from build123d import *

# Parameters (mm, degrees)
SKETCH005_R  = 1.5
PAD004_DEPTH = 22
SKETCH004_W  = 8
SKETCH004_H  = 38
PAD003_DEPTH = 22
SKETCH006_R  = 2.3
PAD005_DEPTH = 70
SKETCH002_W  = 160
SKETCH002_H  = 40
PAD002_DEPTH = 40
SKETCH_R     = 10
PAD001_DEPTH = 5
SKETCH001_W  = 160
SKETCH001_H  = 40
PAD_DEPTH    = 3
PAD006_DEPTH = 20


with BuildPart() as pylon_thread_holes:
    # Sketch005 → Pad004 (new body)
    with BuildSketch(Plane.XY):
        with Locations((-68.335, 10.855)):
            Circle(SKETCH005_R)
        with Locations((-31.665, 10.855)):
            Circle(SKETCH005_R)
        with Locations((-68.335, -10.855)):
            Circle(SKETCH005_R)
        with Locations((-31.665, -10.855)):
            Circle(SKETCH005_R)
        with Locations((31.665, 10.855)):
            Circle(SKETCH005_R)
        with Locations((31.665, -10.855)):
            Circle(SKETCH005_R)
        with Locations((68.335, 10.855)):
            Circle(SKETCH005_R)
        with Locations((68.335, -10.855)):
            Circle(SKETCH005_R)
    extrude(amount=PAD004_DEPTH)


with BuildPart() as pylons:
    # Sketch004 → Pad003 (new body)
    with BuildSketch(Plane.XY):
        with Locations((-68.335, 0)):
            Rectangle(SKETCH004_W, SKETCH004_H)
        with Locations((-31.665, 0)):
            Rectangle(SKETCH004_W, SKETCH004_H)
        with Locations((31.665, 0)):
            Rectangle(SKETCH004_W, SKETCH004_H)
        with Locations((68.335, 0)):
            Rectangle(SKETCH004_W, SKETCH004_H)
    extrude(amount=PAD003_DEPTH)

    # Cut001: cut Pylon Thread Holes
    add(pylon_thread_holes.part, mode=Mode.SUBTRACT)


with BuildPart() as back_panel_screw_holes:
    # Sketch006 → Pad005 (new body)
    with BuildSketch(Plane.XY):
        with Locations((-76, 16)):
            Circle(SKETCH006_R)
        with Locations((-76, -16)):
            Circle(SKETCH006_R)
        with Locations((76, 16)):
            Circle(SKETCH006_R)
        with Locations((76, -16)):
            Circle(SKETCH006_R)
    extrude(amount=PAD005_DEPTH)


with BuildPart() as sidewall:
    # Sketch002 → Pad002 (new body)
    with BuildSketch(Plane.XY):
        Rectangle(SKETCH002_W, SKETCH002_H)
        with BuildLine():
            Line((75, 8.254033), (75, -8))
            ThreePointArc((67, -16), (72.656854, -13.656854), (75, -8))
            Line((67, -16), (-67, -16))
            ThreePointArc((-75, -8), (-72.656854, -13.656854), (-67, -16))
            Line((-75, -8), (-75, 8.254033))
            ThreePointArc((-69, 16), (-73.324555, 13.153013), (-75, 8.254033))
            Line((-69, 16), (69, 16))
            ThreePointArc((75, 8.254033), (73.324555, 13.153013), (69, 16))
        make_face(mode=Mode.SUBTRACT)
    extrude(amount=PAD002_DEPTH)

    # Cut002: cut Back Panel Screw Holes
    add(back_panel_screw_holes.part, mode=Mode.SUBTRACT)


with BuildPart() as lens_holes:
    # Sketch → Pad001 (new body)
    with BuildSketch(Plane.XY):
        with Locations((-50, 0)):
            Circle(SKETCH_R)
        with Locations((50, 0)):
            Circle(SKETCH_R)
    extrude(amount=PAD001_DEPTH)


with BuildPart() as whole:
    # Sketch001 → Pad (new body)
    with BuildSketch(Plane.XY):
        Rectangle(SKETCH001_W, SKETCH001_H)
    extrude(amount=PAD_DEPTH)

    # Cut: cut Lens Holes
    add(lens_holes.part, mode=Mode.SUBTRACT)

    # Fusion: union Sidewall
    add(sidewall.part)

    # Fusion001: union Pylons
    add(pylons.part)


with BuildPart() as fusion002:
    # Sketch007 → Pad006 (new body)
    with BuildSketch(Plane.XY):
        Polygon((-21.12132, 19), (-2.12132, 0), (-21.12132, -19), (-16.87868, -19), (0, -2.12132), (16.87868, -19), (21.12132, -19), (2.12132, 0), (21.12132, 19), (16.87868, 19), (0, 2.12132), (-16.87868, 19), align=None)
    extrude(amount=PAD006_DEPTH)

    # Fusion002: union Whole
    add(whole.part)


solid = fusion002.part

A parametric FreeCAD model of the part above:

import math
import FreeCAD as App
import Part
import Sketcher

V = App.Vector

doc = App.newDocument("Part")
body = doc.addObject("PartDesign::Body", "Body")
body.AllowCompound = True

# Sketch on XY plane
sketch1 = body.newObject("Sketcher::SketchObject", "Sketch")
sketch1.AttachmentSupport = (doc.getObject("XY_Plane"), [""])
sketch1.MapMode = "FlatFace"
sketch1.addGeometry(Part.Circle(V(-68.335, 10.855, 0), V(0, 0, 1), 1.5), False)
sketch1.addGeometry(Part.Circle(V(-31.665, 10.855, 0), V(0, 0, 1), 1.5), False)
sketch1.addGeometry(Part.Circle(V(-68.335, -10.855, 0), V(0, 0, 1), 1.5), False)
sketch1.addGeometry(Part.Circle(V(-31.665, -10.855, 0), V(0, 0, 1), 1.5), False)
sketch1.addGeometry(Part.Circle(V(31.665, 10.855, 0), V(0, 0, 1), 1.5), False)
sketch1.addGeometry(Part.Circle(V(31.665, -10.855, 0), V(0, 0, 1), 1.5), False)
sketch1.addGeometry(Part.Circle(V(68.335, 10.855, 0), V(0, 0, 1), 1.5), False)
sketch1.addGeometry(Part.Circle(V(68.335, -10.855, 0), V(0, 0, 1), 1.5), False)
sketch1.addConstraint(Sketcher.Constraint("Equal", 0, 1))
sketch1.addConstraint(Sketcher.Constraint("Equal", 1, 2))
sketch1.addConstraint(Sketcher.Constraint("Equal", 2, 3))
sketch1.addConstraint(Sketcher.Constraint("Equal", 3, 4))
sketch1.addConstraint(Sketcher.Constraint("Equal", 4, 5))
sketch1.addConstraint(Sketcher.Constraint("Equal", 5, 6))
sketch1.addConstraint(Sketcher.Constraint("Equal", 6, 7))
sketch1.addConstraint(Sketcher.Constraint("Symmetric", 3, 3, 4, 3, -1, 1))
sketch1.addConstraint(Sketcher.Constraint("Symmetric", 1, 3, 5, 3, -1, 1))
sketch1.addConstraint(Sketcher.Constraint("Symmetric", 2, 3, 6, 3, -1, 1))
sketch1.addConstraint(Sketcher.Constraint("Symmetric", 0, 3, 7, 3, -1, 1))
sketch1.addConstraint(Sketcher.Constraint("Symmetric", 1, 3, 4, 3, -2))
sketch1.addConstraint(Sketcher.Constraint("Symmetric", 0, 3, 6, 3, -2))
sketch1.addConstraint(Sketcher.Constraint("Horizontal", 0, 3, 1, 3))
sketch1.addConstraint(Sketcher.Constraint("Diameter", 0, 3.0))
sketch1.addConstraint(Sketcher.Constraint("DistanceX", 0, 3, 4, 3, 100.0))
sketch1.addConstraint(Sketcher.Constraint("DistanceX", 0, 3, 1, 3, 36.67))
sketch1.addConstraint(Sketcher.Constraint("DistanceY", 2, 3, 0, 3, 21.71))
pad1 = body.newObject("PartDesign::Pad", "Pad")
pad1.Profile = sketch1
pad1.Length = 22
body2 = doc.addObject("PartDesign::Body", "Body001")
body2.AllowCompound = True

# Sketch on XY plane
sketch2 = body2.newObject("Sketcher::SketchObject", "Sketch001")
sketch2.AttachmentSupport = (doc.getObject("XY_Plane001"), [""])
sketch2.MapMode = "FlatFace"
sketch2.addGeometry(Part.LineSegment(V(-72.335, 19, 0), V(-72.335, -19, 0)), False)
sketch2.addGeometry(Part.LineSegment(V(-72.335, -19, 0), V(-64.335, -19, 0)), False)
sketch2.addGeometry(Part.LineSegment(V(-64.335, -19, 0), V(-64.335, 19, 0)), False)
sketch2.addGeometry(Part.LineSegment(V(-64.335, 19, 0), V(-72.335, 19, 0)), False)
sketch2.addGeometry(Part.LineSegment(V(-35.665, 19, 0), V(-35.665, -19, 0)), False)
sketch2.addGeometry(Part.LineSegment(V(-35.665, -19, 0), V(-27.665, -19, 0)), False)
sketch2.addGeometry(Part.LineSegment(V(-27.665, -19, 0), V(-27.665, 19, 0)), False)
sketch2.addGeometry(Part.LineSegment(V(-27.665, 19, 0), V(-35.665, 19, 0)), False)
sketch2.addGeometry(Part.LineSegment(V(27.665, 19, 0), V(27.665, -19, 0)), False)
sketch2.addGeometry(Part.LineSegment(V(27.665, -19, 0), V(35.665, -19, 0)), False)
sketch2.addGeometry(Part.LineSegment(V(35.665, -19, 0), V(35.665, 19, 0)), False)
sketch2.addGeometry(Part.LineSegment(V(35.665, 19, 0), V(27.665, 19, 0)), False)
sketch2.addGeometry(Part.LineSegment(V(64.335, 19, 0), V(64.335, -19, 0)), False)
sketch2.addGeometry(Part.LineSegment(V(64.335, -19, 0), V(72.335, -19, 0)), False)
sketch2.addGeometry(Part.LineSegment(V(72.335, -19, 0), V(72.335, 19, 0)), False)
sketch2.addGeometry(Part.LineSegment(V(72.335, 19, 0), V(64.335, 19, 0)), False)
sketch2.addConstraint(Sketcher.Constraint("Coincident", 0, 2, 1, 1))
sketch2.addConstraint(Sketcher.Constraint("Coincident", 1, 2, 2, 1))
sketch2.addConstraint(Sketcher.Constraint("Coincident", 2, 2, 3, 1))
sketch2.addConstraint(Sketcher.Constraint("Coincident", 3, 2, 0, 1))
sketch2.addConstraint(Sketcher.Constraint("Coincident", 4, 2, 5, 1))
sketch2.addConstraint(Sketcher.Constraint("Coincident", 5, 2, 6, 1))
sketch2.addConstraint(Sketcher.Constraint("Coincident", 6, 2, 7, 1))
sketch2.addConstraint(Sketcher.Constraint("Coincident", 7, 2, 4, 1))
sketch2.addConstraint(Sketcher.Constraint("Coincident", 8, 2, 9, 1))
sketch2.addConstraint(Sketcher.Constraint("Coincident", 9, 2, 10, 1))
sketch2.addConstraint(Sketcher.Constraint("Coincident", 10, 2, 11, 1))
sketch2.addConstraint(Sketcher.Constraint("Coincident", 11, 2, 8, 1))
sketch2.addConstraint(Sketcher.Constraint("Coincident", 12, 2, 13, 1))
sketch2.addConstraint(Sketcher.Constraint("Coincident", 13, 2, 14, 1))
sketch2.addConstraint(Sketcher.Constraint("Coincident", 14, 2, 15, 1))
sketch2.addConstraint(Sketcher.Constraint("Coincident", 15, 2, 12, 1))
sketch2.addConstraint(Sketcher.Constraint("Vertical", 0))
sketch2.addConstraint(Sketcher.Constraint("Horizontal", 1))
sketch2.addConstraint(Sketcher.Constraint("Vertical", 2))
sketch2.addConstraint(Sketcher.Constraint("Horizontal", 3))
sketch2.addConstraint(Sketcher.Constraint("Vertical", 4))
sketch2.addConstraint(Sketcher.Constraint("Horizontal", 5))
sketch2.addConstraint(Sketcher.Constraint("Vertical", 6))
sketch2.addConstraint(Sketcher.Constraint("Horizontal", 7))
sketch2.addConstraint(Sketcher.Constraint("Vertical", 8))
sketch2.addConstraint(Sketcher.Constraint("Horizontal", 9))
sketch2.addConstraint(Sketcher.Constraint("Vertical", 10))
sketch2.addConstraint(Sketcher.Constraint("Horizontal", 11))
sketch2.addConstraint(Sketcher.Constraint("Vertical", 12))
sketch2.addConstraint(Sketcher.Constraint("Horizontal", 13))
sketch2.addConstraint(Sketcher.Constraint("Vertical", 14))
sketch2.addConstraint(Sketcher.Constraint("Horizontal", 15))
sketch2.addConstraint(Sketcher.Constraint("Symmetric", 6, 2, 8, 2, -1, 1))
sketch2.addConstraint(Sketcher.Constraint("Symmetric", 4, 2, 10, 2, -1, 1))
sketch2.addConstraint(Sketcher.Constraint("Symmetric", 2, 2, 12, 2, -1, 1))
sketch2.addConstraint(Sketcher.Constraint("Symmetric", 0, 2, 14, 2, -1, 1))
sketch2.addConstraint(Sketcher.Constraint("Horizontal", 1, 2, 4, 2))
sketch2.addConstraint(Sketcher.Constraint("Horizontal", 3, 2, 6, 2))
sketch2.addConstraint(Sketcher.Constraint("Horizontal", 5, 2, 8, 2))
sketch2.addConstraint(Sketcher.Constraint("Equal", 3, 5))
sketch2.addConstraint(Sketcher.Constraint("DistanceX", 1, 1, 1, 2, 8.0))
sketch2.addConstraint(Sketcher.Constraint("DistanceY", 0, 2, 0, 1, 38.0))
sketch2.addConstraint(Sketcher.Constraint("DistanceX", 1, 2, 8, 2, 92.0))
sketch2.addConstraint(Sketcher.Constraint("DistanceX", 1, 2, 4, 2, 28.67))
pad2 = body2.newObject("PartDesign::Pad", "Pad001")
pad2.Profile = sketch2
pad2.Length = 22
doc.recompute()

boolean = body2.newObject("PartDesign::Boolean", "Boolean")
boolean.Type = "Cut"
boolean.addObjects([body])
body3 = doc.addObject("PartDesign::Body", "Body002")
body3.AllowCompound = True

# Sketch on XY plane
sketch3 = body3.newObject("Sketcher::SketchObject", "Sketch002")
sketch3.AttachmentSupport = (doc.getObject("XY_Plane002"), [""])
sketch3.MapMode = "FlatFace"
sketch3.addGeometry(Part.Circle(V(-76, 16, 0), V(0, 0, 1), 2.3), False)
sketch3.addGeometry(Part.Circle(V(-76, -16, 0), V(0, 0, 1), 2.3), False)
sketch3.addGeometry(Part.Circle(V(76, 16, 0), V(0, 0, 1), 2.3), False)
sketch3.addGeometry(Part.Circle(V(76, -16, 0), V(0, 0, 1), 2.3), False)
sketch3.addConstraint(Sketcher.Constraint("Equal", 0, 1))
sketch3.addConstraint(Sketcher.Constraint("Equal", 1, 2))
sketch3.addConstraint(Sketcher.Constraint("Equal", 2, 3))
sketch3.addConstraint(Sketcher.Constraint("Symmetric", 1, 3, 2, 3, -1, 1))
sketch3.addConstraint(Sketcher.Constraint("Symmetric", 0, 3, 3, 3, -1, 1))
sketch3.addConstraint(Sketcher.Constraint("Symmetric", 0, 3, 2, 3, -2))
sketch3.addConstraint(Sketcher.Constraint("Diameter", 0, 4.6))
sketch3.addConstraint(Sketcher.Constraint("DistanceX", 0, 3, -1, 1, 76.0))
sketch3.addConstraint(Sketcher.Constraint("DistanceY", -1, 1, 0, 3, 16.0))
pad3 = body3.newObject("PartDesign::Pad", "Pad002")
pad3.Profile = sketch3
pad3.Length = 70
body4 = doc.addObject("PartDesign::Body", "Body003")

# Sketch on XY plane
sketch4 = body4.newObject("Sketcher::SketchObject", "Sketch003")
sketch4.AttachmentSupport = (doc.getObject("XY_Plane003"), [""])
sketch4.MapMode = "FlatFace"
sketch4.addGeometry(Part.LineSegment(V(-80, 20, 0), V(-80, -20, 0)), False)
sketch4.addGeometry(Part.LineSegment(V(-80, -20, 0), V(80, -20, 0)), False)
sketch4.addGeometry(Part.LineSegment(V(80, -20, 0), V(80, 20, 0)), False)
sketch4.addGeometry(Part.LineSegment(V(80, 20, 0), V(-80, 20, 0)), False)
sketch4.addGeometry(Part.ArcOfCircle(Part.Circle(V(67, 8.254033, 0), V(0, 0, 1), 8), math.radians(0), math.radians(75.522485)), False)
sketch4.addGeometry(Part.LineSegment(V(75, 8.254033, 0), V(75, -8, 0)), False)
sketch4.addGeometry(Part.ArcOfCircle(Part.Circle(V(66.999999, -7.999999, 0), V(0, 0, 1), 8.000001), math.radians(-89.999994), math.radians(-0.000006)), False)
sketch4.addGeometry(Part.LineSegment(V(67, -16, 0), V(-67, -16, 0)), False)
sketch4.addGeometry(Part.ArcOfCircle(Part.Circle(V(-66.999999, -7.999999, 0), V(0, 0, 1), 8.000001), math.radians(-179.999994), math.radians(-90.000006)), False)
sketch4.addGeometry(Part.LineSegment(V(-75, -8, 0), V(-75, 8.254033, 0)), False)
sketch4.addGeometry(Part.ArcOfCircle(Part.Circle(V(-67, 8.254033, 0), V(0, 0, 1), 8), math.radians(104.477515), math.radians(180)), False)
sketch4.addGeometry(Part.LineSegment(V(-69, 16, 0), V(69, 16, 0)), False)
sketch4.addConstraint(Sketcher.Constraint("Coincident", 0, 2, 1, 1))
sketch4.addConstraint(Sketcher.Constraint("Coincident", 1, 2, 2, 1))
sketch4.addConstraint(Sketcher.Constraint("Coincident", 2, 2, 3, 1))
sketch4.addConstraint(Sketcher.Constraint("Coincident", 3, 2, 0, 1))
sketch4.addConstraint(Sketcher.Constraint("Tangent", 4, 1, 5, 1))
sketch4.addConstraint(Sketcher.Constraint("Tangent", 5, 2, 6, 2))
sketch4.addConstraint(Sketcher.Constraint("Tangent", 6, 1, 7, 1))
sketch4.addConstraint(Sketcher.Constraint("Tangent", 7, 2, 8, 2))
sketch4.addConstraint(Sketcher.Constraint("Tangent", 8, 1, 9, 1))
sketch4.addConstraint(Sketcher.Constraint("Tangent", 9, 2, 10, 2))
sketch4.addConstraint(Sketcher.Constraint("Coincident", 10, 1, 11, 1))
sketch4.addConstraint(Sketcher.Constraint("Coincident", 11, 2, 4, 2))
sketch4.addConstraint(Sketcher.Constraint("Vertical", 0))
sketch4.addConstraint(Sketcher.Constraint("Horizontal", 1))
sketch4.addConstraint(Sketcher.Constraint("Vertical", 2))
sketch4.addConstraint(Sketcher.Constraint("Horizontal", 3))
sketch4.addConstraint(Sketcher.Constraint("Vertical", 5))
sketch4.addConstraint(Sketcher.Constraint("Horizontal", 7))
sketch4.addConstraint(Sketcher.Constraint("Vertical", 9))
sketch4.addConstraint(Sketcher.Constraint("Horizontal", 11))
sketch4.addConstraint(Sketcher.Constraint("Equal", 4, 6))
sketch4.addConstraint(Sketcher.Constraint("Equal", 6, 8))
sketch4.addConstraint(Sketcher.Constraint("Equal", 8, 10))
sketch4.addConstraint(Sketcher.Constraint("Symmetric", 0, 2, 2, 2, -1, 1))
sketch4.addConstraint(Sketcher.Constraint("Symmetric", 4, 3, 10, 3, -2))
sketch4.addConstraint(Sketcher.Constraint("Radius", 4, 8.0))
sketch4.addConstraint(Sketcher.Constraint("DistanceX", 1, 1, 1, 2, 160.0))
sketch4.addConstraint(Sketcher.Constraint("DistanceX", 7, 2, 7, 1, 134.0))
sketch4.addConstraint(Sketcher.Constraint("DistanceX", 11, 1, 11, 2, 138.0))
sketch4.addConstraint(Sketcher.Constraint("DistanceY", 0, 2, 0, 1, 40.0))
sketch4.addConstraint(Sketcher.Constraint("DistanceY", 6, 3, -1, 1, 7.999999))
sketch4.addConstraint(Sketcher.Constraint("DistanceY", -1, 1, 10, 1, 16.0))
pad4 = body4.newObject("PartDesign::Pad", "Pad003")
pad4.Profile = sketch4
pad4.Length = 40
doc.recompute()

boolean2 = body4.newObject("PartDesign::Boolean", "Boolean001")
boolean2.Type = "Cut"
boolean2.addObjects([body3])
body5 = doc.addObject("PartDesign::Body", "Body004")
body5.AllowCompound = True

# Sketch on XY plane
sketch5 = body5.newObject("Sketcher::SketchObject", "Sketch004")
sketch5.AttachmentSupport = (doc.getObject("XY_Plane004"), [""])
sketch5.MapMode = "FlatFace"
sketch5.addGeometry(Part.Circle(V(-50, 0, 0), V(0, 0, 1), 10), False)
sketch5.addGeometry(Part.Circle(V(50, 0, 0), V(0, 0, 1), 10), False)
sketch5.addConstraint(Sketcher.Constraint("Equal", 0, 1))
sketch5.addConstraint(Sketcher.Constraint("Symmetric", 0, 3, 1, 3, -1, 1))
sketch5.addConstraint(Sketcher.Constraint("PointOnObject", 0, 3, -1))
sketch5.addConstraint(Sketcher.Constraint("Diameter", 0, 20.0))
sketch5.addConstraint(Sketcher.Constraint("DistanceX", 0, 3, -1, 1, 50.0))
pad5 = body5.newObject("PartDesign::Pad", "Pad004")
pad5.Profile = sketch5
pad5.Length = 5
body6 = doc.addObject("PartDesign::Body", "Body005")

# Sketch on XY plane
sketch6 = body6.newObject("Sketcher::SketchObject", "Sketch005")
sketch6.AttachmentSupport = (doc.getObject("XY_Plane005"), [""])
sketch6.MapMode = "FlatFace"
sketch6.addGeometry(Part.LineSegment(V(-80, 20, 0), V(-80, -20, 0)), False)
sketch6.addGeometry(Part.LineSegment(V(-80, -20, 0), V(80, -20, 0)), False)
sketch6.addGeometry(Part.LineSegment(V(80, -20, 0), V(80, 20, 0)), False)
sketch6.addGeometry(Part.LineSegment(V(80, 20, 0), V(-80, 20, 0)), False)
sketch6.addConstraint(Sketcher.Constraint("Coincident", 0, 2, 1, 1))
sketch6.addConstraint(Sketcher.Constraint("Coincident", 1, 2, 2, 1))
sketch6.addConstraint(Sketcher.Constraint("Coincident", 2, 2, 3, 1))
sketch6.addConstraint(Sketcher.Constraint("Coincident", 3, 2, 0, 1))
sketch6.addConstraint(Sketcher.Constraint("Vertical", 0))
sketch6.addConstraint(Sketcher.Constraint("Horizontal", 1))
sketch6.addConstraint(Sketcher.Constraint("Vertical", 2))
sketch6.addConstraint(Sketcher.Constraint("Horizontal", 3))
sketch6.addConstraint(Sketcher.Constraint("Symmetric", 0, 2, 2, 2, -1, 1))
sketch6.addConstraint(Sketcher.Constraint("DistanceX", 1, 1, 1, 2, 160.0))
sketch6.addConstraint(Sketcher.Constraint("DistanceY", 0, 2, 0, 1, 40.0))
pad6 = body6.newObject("PartDesign::Pad", "Pad005")
pad6.Profile = sketch6
pad6.Length = 3
doc.recompute()

boolean3 = body6.newObject("PartDesign::Boolean", "Boolean002")
boolean3.Type = "Cut"
boolean3.addObjects([body5])
doc.recompute()

boolean4 = body6.newObject("PartDesign::Boolean", "Boolean003")
boolean4.Type = "Fuse"
boolean4.addObjects([body4])
doc.recompute()

boolean5 = body6.newObject("PartDesign::Boolean", "Boolean004")
boolean5.Type = "Fuse"
boolean5.addObjects([body2])
body7 = doc.addObject("PartDesign::Body", "Body006")

# Sketch on XY plane
sketch7 = body7.newObject("Sketcher::SketchObject", "Sketch006")
sketch7.AttachmentSupport = (doc.getObject("XY_Plane006"), [""])
sketch7.MapMode = "FlatFace"
sketch7.addGeometry(Part.LineSegment(V(-21.12132, 19, 0), V(-2.12132, 0, 0)), False)
sketch7.addGeometry(Part.LineSegment(V(-2.12132, 0, 0), V(-21.12132, -19, 0)), False)
sketch7.addGeometry(Part.LineSegment(V(-21.12132, -19, 0), V(-16.87868, -19, 0)), False)
sketch7.addGeometry(Part.LineSegment(V(-16.87868, -19, 0), V(0, -2.12132, 0)), False)
sketch7.addGeometry(Part.LineSegment(V(0, -2.12132, 0), V(16.87868, -19, 0)), False)
sketch7.addGeometry(Part.LineSegment(V(16.87868, -19, 0), V(21.12132, -19, 0)), False)
sketch7.addGeometry(Part.LineSegment(V(21.12132, -19, 0), V(2.12132, 0, 0)), False)
sketch7.addGeometry(Part.LineSegment(V(2.12132, 0, 0), V(21.12132, 19, 0)), False)
sketch7.addGeometry(Part.LineSegment(V(21.12132, 19, 0), V(16.87868, 19, 0)), False)
sketch7.addGeometry(Part.LineSegment(V(16.87868, 19, 0), V(0, 2.12132, 0)), False)
sketch7.addGeometry(Part.LineSegment(V(0, 2.12132, 0), V(-16.87868, 19, 0)), False)
sketch7.addGeometry(Part.LineSegment(V(-16.87868, 19, 0), V(-21.12132, 19, 0)), False)
sketch7.addConstraint(Sketcher.Constraint("Coincident", 0, 2, 1, 1))
sketch7.addConstraint(Sketcher.Constraint("Coincident", 1, 2, 2, 1))
sketch7.addConstraint(Sketcher.Constraint("Coincident", 2, 2, 3, 1))
sketch7.addConstraint(Sketcher.Constraint("Coincident", 3, 2, 4, 1))
sketch7.addConstraint(Sketcher.Constraint("Coincident", 4, 2, 5, 1))
sketch7.addConstraint(Sketcher.Constraint("Coincident", 5, 2, 6, 1))
sketch7.addConstraint(Sketcher.Constraint("Coincident", 6, 2, 7, 1))
sketch7.addConstraint(Sketcher.Constraint("Coincident", 7, 2, 8, 1))
sketch7.addConstraint(Sketcher.Constraint("Coincident", 8, 2, 9, 1))
sketch7.addConstraint(Sketcher.Constraint("Coincident", 9, 2, 10, 1))
sketch7.addConstraint(Sketcher.Constraint("Coincident", 10, 2, 11, 1))
sketch7.addConstraint(Sketcher.Constraint("Coincident", 11, 2, 0, 1))
sketch7.addConstraint(Sketcher.Constraint("Horizontal", 2))
sketch7.addConstraint(Sketcher.Constraint("Horizontal", 5))
sketch7.addConstraint(Sketcher.Constraint("Horizontal", 8))
sketch7.addConstraint(Sketcher.Constraint("Horizontal", 11))
sketch7.addConstraint(Sketcher.Constraint("Symmetric", 0, 2, 6, 2, -1, 1))
sketch7.addConstraint(Sketcher.Constraint("Symmetric", 1, 2, 7, 2, -1, 1))
sketch7.addConstraint(Sketcher.Constraint("Symmetric", 3, 2, 9, 2, -1, 1))
sketch7.addConstraint(Sketcher.Constraint("Symmetric", 4, 2, 10, 2, -1, 1))
sketch7.addConstraint(Sketcher.Constraint("Symmetric", 2, 2, 4, 2, -2))
sketch7.addConstraint(Sketcher.Constraint("PointOnObject", 0, 2, -1))
sketch7.addConstraint(Sketcher.Constraint("PointOnObject", 3, 2, -2))
sketch7.addConstraint(Sketcher.Constraint("Perpendicular", 0, 1))
sketch7.addConstraint(Sketcher.Constraint("Parallel", 1, 3))
sketch7.addConstraint(Sketcher.Constraint("Perpendicular", 3, 4))
sketch7.addConstraint(Sketcher.Constraint("Parallel", 4, 6))
sketch7.addConstraint(Sketcher.Constraint("Parallel", 7, 9))
sketch7.addConstraint(Sketcher.Constraint("DistanceY", 1, 2, -1, 1, 19.0))
sketch7.addConstraint(Sketcher.Constraint("DistanceX", 0, 2, 4, 2, 19.0))
sketch7.addConstraint(Sketcher.Constraint("DistanceX", 2, 1, 2, 2, 4.24264))
pad7 = body7.newObject("PartDesign::Pad", "Pad006")
pad7.Profile = sketch7
pad7.Length = 20
doc.recompute()

boolean6 = body7.newObject("PartDesign::Boolean", "Boolean005")
boolean6.Type = "Fuse"
boolean6.addObjects([body6])

doc.recompute()
